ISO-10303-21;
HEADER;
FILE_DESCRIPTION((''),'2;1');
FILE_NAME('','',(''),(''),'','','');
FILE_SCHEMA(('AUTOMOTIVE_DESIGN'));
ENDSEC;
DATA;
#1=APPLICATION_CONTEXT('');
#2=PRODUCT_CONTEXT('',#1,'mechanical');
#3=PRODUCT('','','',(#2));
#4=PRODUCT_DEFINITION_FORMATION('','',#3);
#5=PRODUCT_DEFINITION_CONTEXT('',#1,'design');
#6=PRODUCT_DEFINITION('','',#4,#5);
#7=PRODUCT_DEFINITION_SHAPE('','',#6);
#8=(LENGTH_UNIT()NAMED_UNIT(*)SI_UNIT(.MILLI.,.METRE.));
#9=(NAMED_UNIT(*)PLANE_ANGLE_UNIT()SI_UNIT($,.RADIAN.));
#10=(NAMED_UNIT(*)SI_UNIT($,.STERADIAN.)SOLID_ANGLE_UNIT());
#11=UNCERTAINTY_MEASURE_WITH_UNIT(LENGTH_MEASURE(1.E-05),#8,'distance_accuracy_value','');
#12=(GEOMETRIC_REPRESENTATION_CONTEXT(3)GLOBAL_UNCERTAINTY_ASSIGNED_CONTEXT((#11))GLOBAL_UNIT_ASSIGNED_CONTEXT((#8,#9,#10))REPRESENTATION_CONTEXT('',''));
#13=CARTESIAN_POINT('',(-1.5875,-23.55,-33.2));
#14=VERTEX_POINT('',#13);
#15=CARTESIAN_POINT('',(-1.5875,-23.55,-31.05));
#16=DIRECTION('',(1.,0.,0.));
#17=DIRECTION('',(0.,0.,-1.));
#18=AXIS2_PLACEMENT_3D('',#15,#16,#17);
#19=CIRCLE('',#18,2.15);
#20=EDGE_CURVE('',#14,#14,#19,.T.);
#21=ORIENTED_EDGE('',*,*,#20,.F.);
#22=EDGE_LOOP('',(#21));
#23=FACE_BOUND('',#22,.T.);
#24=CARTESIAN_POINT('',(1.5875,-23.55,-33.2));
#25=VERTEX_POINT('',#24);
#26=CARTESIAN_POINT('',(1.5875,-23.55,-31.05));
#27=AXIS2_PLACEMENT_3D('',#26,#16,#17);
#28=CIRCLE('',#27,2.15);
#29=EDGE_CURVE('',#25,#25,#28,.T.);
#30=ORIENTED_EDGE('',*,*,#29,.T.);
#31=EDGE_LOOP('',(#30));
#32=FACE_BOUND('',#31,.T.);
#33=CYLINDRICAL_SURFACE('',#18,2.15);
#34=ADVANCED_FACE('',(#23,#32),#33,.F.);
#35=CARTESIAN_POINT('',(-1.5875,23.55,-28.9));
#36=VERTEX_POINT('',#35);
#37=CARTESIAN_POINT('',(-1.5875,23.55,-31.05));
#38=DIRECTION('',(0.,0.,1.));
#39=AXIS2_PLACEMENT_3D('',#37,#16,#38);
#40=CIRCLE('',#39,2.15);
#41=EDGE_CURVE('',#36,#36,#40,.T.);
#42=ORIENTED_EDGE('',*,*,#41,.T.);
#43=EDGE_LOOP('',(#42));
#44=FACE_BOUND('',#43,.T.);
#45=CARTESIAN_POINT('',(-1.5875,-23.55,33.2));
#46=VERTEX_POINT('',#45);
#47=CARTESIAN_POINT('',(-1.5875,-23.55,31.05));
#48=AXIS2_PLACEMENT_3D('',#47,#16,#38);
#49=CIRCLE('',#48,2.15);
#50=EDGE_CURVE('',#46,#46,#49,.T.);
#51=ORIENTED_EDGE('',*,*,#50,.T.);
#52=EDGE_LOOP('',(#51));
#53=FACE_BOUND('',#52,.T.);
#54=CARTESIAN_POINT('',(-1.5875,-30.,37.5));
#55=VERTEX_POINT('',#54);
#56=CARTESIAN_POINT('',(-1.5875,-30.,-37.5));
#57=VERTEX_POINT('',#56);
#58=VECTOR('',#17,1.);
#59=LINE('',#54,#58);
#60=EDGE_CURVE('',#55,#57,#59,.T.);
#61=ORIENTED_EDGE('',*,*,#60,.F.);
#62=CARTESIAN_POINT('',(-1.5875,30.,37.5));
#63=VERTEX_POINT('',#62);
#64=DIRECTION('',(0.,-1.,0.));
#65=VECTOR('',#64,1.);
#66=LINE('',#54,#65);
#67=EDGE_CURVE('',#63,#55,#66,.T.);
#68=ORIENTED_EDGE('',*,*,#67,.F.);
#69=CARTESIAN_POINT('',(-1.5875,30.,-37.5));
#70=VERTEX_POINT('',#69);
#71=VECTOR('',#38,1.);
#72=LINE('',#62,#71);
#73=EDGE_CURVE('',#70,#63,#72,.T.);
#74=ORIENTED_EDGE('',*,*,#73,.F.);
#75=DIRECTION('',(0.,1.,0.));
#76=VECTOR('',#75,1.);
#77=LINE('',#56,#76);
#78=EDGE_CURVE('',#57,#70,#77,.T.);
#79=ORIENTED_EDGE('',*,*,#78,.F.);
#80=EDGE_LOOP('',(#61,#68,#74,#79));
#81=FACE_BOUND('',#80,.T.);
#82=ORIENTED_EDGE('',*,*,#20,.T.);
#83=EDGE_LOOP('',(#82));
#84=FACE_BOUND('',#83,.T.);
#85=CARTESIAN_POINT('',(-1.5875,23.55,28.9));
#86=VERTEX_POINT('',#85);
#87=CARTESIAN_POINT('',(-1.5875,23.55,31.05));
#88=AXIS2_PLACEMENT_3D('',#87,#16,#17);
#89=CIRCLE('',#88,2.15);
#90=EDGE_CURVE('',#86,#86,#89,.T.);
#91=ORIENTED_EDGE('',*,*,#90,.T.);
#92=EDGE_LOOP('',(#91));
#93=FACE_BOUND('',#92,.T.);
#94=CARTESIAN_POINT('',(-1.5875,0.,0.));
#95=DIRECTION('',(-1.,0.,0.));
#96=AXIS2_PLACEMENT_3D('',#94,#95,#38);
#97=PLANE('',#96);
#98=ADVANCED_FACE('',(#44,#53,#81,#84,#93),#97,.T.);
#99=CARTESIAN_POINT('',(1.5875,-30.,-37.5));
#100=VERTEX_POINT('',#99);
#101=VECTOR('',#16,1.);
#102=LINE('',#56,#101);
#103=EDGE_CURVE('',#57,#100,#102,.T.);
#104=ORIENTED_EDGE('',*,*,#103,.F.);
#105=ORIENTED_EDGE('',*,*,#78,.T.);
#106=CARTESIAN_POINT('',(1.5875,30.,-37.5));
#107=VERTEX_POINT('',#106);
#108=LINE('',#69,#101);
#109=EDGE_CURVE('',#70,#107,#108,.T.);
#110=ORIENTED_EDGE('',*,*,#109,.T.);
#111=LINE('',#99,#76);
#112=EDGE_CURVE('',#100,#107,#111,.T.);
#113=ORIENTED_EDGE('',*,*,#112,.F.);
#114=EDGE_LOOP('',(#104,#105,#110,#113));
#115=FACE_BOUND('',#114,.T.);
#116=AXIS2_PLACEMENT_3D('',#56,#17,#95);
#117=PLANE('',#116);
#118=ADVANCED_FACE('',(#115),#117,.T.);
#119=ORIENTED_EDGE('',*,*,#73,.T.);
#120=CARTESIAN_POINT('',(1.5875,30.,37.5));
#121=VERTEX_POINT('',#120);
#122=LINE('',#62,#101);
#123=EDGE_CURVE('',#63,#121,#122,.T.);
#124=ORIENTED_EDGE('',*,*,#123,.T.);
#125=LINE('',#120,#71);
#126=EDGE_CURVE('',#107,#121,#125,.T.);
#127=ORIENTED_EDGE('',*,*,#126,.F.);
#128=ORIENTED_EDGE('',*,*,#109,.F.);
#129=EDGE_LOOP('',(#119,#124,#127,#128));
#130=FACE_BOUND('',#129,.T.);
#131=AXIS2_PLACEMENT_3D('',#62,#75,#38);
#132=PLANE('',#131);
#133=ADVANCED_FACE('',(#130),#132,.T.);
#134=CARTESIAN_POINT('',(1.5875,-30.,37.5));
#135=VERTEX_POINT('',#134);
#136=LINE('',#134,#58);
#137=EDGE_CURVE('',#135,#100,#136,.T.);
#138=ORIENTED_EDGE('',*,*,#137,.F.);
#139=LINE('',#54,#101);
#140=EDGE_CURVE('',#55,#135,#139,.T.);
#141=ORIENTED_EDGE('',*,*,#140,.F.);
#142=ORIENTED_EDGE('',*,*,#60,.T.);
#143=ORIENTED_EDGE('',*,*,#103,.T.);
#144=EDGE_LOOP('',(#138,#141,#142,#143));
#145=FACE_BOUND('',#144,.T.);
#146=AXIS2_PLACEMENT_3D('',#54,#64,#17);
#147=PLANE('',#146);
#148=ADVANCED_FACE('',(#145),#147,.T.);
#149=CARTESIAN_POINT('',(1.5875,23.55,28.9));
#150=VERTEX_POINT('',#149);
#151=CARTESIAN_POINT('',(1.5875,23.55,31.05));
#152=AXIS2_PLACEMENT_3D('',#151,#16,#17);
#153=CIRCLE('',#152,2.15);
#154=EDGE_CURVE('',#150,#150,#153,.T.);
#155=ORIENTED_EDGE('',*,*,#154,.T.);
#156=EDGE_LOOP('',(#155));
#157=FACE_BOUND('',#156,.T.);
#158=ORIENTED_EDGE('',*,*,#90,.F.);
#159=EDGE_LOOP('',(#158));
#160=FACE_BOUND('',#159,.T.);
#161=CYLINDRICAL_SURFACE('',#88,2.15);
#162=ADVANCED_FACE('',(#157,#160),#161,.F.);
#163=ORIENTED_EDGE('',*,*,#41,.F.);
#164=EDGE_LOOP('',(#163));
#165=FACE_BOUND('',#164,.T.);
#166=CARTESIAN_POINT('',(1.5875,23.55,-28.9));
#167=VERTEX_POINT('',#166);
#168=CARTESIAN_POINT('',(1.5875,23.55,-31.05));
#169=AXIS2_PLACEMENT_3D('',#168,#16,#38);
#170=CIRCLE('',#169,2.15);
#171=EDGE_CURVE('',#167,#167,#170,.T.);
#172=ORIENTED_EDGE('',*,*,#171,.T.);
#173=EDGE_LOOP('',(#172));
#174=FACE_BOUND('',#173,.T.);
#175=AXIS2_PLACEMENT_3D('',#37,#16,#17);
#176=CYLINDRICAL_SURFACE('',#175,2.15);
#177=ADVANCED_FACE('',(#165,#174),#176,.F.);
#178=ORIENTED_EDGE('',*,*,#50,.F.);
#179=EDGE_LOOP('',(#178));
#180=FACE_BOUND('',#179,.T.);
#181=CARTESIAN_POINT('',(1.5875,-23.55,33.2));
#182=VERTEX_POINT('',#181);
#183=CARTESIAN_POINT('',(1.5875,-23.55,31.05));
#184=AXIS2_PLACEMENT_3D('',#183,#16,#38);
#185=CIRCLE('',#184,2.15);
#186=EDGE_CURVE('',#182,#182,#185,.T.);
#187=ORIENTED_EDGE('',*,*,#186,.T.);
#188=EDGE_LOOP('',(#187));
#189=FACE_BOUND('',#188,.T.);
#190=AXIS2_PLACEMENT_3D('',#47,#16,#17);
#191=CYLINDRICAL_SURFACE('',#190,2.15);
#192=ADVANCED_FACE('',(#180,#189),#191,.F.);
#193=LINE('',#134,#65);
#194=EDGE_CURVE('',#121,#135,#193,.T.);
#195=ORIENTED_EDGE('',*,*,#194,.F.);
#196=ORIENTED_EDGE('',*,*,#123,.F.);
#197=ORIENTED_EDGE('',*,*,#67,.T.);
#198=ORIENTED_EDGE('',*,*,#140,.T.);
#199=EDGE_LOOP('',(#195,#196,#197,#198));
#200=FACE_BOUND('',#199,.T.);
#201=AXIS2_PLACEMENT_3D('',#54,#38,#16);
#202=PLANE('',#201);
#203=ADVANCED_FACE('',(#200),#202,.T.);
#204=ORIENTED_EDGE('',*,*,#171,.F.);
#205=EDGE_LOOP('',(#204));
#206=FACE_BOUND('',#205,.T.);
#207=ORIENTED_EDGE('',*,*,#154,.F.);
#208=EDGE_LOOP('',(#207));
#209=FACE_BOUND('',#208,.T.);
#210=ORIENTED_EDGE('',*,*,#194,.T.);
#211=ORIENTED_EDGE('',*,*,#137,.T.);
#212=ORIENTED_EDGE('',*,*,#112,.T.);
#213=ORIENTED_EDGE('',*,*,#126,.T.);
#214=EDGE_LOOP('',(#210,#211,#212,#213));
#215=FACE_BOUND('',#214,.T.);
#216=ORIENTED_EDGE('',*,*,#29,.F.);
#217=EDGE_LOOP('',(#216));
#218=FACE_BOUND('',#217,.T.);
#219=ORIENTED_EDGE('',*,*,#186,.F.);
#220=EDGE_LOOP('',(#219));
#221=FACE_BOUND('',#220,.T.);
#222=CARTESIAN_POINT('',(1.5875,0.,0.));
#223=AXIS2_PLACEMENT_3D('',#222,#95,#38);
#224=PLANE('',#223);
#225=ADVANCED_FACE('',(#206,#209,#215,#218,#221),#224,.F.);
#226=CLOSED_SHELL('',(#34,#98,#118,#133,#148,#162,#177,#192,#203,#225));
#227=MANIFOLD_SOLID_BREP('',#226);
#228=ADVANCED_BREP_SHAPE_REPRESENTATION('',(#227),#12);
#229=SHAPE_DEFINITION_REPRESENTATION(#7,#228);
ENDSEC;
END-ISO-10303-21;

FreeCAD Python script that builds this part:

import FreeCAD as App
import Part
import Sketcher
from FreeCAD import Vector
Q = App.Units.Quantity


def add_polygon(sketch, points):
    """Adds a closed chain of lines whose ends are joined by coincident constraints."""
    first, n = sketch.GeometryCount, len(points)
    for a, b in zip(points, points[1:] + points[:1]):
        sketch.addGeometry(Part.LineSegment(App.Vector(*a, 0), App.Vector(*b, 0)), False)
    for i in range(n):
        sketch.addConstraint(Sketcher.Constraint("Coincident", first + i, 2, first + (i + 1) % n, 1))

doc = App.newDocument("Part")
body = doc.addObject("PartDesign::Body", "Body")

sketch1 = doc.addObject("Sketcher::SketchObject", "Sketch")
body.addObject(sketch1)
sketch1.AttachmentSupport = (doc.YZ_Plane, [""])
sketch1.MapMode = "FlatFace"
add_polygon(sketch1, [(30, 37.5), (-30, 37.5), (-30, -37.5), (30, -37.5)])
sketch1.addConstraint(Sketcher.Constraint("Horizontal", 0))
sketch1.addConstraint(Sketcher.Constraint("Vertical", 1))
sketch1.addConstraint(Sketcher.Constraint("Horizontal", 2))
sketch1.addConstraint(Sketcher.Constraint("Vertical", 3))
sketch1.addConstraint(Sketcher.Constraint("Symmetric", 0, 2, 2, 2, -1, 1))
sketch1.addConstraint(Sketcher.Constraint("DistanceX", 0, 2, 0, 1, Q("60 mm")))
sketch1.addConstraint(Sketcher.Constraint("DistanceY", 1, 2, 1, 1, Q("75 mm")))
pad1 = doc.addObject("PartDesign::Pad", "Pad")
body.addObject(pad1)
pad1.Profile = sketch1
pad1.Type = "TwoLengths"
pad1.Length = 1.5875
pad1.Length2 = 1.5875

sketch2 = doc.addObject("Sketcher::SketchObject", "Sketch001")
body.addObject(sketch2)
sketch2.AttachmentSupport = (doc.YZ_Plane, [""])
sketch2.MapMode = "FlatFace"
sketch2.addGeometry(Part.Circle(Vector(23.55, 31.05, 0), Vector(0, 0, 1), 2.15), False)
sketch2.addGeometry(Part.Circle(Vector(23.55, -31.05, 0), Vector(0, 0, 1), 2.15), False)
sketch2.addGeometry(Part.Circle(Vector(-23.55, -31.05, 0), Vector(0, 0, 1), 2.15), False)
sketch2.addGeometry(Part.Circle(Vector(-23.55, 31.05, 0), Vector(0, 0, 1), 2.15), False)
sketch2.addConstraint(Sketcher.Constraint("Equal", 0, 1))
sketch2.addConstraint(Sketcher.Constraint("Equal", 1, 2))
sketch2.addConstraint(Sketcher.Constraint("Equal", 2, 3))
sketch2.addConstraint(Sketcher.Constraint("Symmetric", 0, 3, 2, 3, -1, 1))
sketch2.addConstraint(Sketcher.Constraint("Symmetric", 1, 3, 3, 3, -1, 1))
sketch2.addConstraint(Sketcher.Constraint("Symmetric", 1, 3, 2, 3, -2))
sketch2.addConstraint(Sketcher.Constraint("Diameter", 0, Q("4.3 mm")))
sketch2.addConstraint(Sketcher.Constraint("DistanceY", 1, 3, 0, 3, Q("62.1 mm")))
sketch2.addConstraint(Sketcher.Constraint("DistanceX", 2, 3, 1, 3, Q("47.1 mm")))
pocket1 = doc.addObject("PartDesign::Pocket", "Pocket")
body.addObject(pocket1)
pocket1.Profile = sketch2
pocket1.Type = "ThroughAll"
pocket1.Midplane = True

doc.recompute()
